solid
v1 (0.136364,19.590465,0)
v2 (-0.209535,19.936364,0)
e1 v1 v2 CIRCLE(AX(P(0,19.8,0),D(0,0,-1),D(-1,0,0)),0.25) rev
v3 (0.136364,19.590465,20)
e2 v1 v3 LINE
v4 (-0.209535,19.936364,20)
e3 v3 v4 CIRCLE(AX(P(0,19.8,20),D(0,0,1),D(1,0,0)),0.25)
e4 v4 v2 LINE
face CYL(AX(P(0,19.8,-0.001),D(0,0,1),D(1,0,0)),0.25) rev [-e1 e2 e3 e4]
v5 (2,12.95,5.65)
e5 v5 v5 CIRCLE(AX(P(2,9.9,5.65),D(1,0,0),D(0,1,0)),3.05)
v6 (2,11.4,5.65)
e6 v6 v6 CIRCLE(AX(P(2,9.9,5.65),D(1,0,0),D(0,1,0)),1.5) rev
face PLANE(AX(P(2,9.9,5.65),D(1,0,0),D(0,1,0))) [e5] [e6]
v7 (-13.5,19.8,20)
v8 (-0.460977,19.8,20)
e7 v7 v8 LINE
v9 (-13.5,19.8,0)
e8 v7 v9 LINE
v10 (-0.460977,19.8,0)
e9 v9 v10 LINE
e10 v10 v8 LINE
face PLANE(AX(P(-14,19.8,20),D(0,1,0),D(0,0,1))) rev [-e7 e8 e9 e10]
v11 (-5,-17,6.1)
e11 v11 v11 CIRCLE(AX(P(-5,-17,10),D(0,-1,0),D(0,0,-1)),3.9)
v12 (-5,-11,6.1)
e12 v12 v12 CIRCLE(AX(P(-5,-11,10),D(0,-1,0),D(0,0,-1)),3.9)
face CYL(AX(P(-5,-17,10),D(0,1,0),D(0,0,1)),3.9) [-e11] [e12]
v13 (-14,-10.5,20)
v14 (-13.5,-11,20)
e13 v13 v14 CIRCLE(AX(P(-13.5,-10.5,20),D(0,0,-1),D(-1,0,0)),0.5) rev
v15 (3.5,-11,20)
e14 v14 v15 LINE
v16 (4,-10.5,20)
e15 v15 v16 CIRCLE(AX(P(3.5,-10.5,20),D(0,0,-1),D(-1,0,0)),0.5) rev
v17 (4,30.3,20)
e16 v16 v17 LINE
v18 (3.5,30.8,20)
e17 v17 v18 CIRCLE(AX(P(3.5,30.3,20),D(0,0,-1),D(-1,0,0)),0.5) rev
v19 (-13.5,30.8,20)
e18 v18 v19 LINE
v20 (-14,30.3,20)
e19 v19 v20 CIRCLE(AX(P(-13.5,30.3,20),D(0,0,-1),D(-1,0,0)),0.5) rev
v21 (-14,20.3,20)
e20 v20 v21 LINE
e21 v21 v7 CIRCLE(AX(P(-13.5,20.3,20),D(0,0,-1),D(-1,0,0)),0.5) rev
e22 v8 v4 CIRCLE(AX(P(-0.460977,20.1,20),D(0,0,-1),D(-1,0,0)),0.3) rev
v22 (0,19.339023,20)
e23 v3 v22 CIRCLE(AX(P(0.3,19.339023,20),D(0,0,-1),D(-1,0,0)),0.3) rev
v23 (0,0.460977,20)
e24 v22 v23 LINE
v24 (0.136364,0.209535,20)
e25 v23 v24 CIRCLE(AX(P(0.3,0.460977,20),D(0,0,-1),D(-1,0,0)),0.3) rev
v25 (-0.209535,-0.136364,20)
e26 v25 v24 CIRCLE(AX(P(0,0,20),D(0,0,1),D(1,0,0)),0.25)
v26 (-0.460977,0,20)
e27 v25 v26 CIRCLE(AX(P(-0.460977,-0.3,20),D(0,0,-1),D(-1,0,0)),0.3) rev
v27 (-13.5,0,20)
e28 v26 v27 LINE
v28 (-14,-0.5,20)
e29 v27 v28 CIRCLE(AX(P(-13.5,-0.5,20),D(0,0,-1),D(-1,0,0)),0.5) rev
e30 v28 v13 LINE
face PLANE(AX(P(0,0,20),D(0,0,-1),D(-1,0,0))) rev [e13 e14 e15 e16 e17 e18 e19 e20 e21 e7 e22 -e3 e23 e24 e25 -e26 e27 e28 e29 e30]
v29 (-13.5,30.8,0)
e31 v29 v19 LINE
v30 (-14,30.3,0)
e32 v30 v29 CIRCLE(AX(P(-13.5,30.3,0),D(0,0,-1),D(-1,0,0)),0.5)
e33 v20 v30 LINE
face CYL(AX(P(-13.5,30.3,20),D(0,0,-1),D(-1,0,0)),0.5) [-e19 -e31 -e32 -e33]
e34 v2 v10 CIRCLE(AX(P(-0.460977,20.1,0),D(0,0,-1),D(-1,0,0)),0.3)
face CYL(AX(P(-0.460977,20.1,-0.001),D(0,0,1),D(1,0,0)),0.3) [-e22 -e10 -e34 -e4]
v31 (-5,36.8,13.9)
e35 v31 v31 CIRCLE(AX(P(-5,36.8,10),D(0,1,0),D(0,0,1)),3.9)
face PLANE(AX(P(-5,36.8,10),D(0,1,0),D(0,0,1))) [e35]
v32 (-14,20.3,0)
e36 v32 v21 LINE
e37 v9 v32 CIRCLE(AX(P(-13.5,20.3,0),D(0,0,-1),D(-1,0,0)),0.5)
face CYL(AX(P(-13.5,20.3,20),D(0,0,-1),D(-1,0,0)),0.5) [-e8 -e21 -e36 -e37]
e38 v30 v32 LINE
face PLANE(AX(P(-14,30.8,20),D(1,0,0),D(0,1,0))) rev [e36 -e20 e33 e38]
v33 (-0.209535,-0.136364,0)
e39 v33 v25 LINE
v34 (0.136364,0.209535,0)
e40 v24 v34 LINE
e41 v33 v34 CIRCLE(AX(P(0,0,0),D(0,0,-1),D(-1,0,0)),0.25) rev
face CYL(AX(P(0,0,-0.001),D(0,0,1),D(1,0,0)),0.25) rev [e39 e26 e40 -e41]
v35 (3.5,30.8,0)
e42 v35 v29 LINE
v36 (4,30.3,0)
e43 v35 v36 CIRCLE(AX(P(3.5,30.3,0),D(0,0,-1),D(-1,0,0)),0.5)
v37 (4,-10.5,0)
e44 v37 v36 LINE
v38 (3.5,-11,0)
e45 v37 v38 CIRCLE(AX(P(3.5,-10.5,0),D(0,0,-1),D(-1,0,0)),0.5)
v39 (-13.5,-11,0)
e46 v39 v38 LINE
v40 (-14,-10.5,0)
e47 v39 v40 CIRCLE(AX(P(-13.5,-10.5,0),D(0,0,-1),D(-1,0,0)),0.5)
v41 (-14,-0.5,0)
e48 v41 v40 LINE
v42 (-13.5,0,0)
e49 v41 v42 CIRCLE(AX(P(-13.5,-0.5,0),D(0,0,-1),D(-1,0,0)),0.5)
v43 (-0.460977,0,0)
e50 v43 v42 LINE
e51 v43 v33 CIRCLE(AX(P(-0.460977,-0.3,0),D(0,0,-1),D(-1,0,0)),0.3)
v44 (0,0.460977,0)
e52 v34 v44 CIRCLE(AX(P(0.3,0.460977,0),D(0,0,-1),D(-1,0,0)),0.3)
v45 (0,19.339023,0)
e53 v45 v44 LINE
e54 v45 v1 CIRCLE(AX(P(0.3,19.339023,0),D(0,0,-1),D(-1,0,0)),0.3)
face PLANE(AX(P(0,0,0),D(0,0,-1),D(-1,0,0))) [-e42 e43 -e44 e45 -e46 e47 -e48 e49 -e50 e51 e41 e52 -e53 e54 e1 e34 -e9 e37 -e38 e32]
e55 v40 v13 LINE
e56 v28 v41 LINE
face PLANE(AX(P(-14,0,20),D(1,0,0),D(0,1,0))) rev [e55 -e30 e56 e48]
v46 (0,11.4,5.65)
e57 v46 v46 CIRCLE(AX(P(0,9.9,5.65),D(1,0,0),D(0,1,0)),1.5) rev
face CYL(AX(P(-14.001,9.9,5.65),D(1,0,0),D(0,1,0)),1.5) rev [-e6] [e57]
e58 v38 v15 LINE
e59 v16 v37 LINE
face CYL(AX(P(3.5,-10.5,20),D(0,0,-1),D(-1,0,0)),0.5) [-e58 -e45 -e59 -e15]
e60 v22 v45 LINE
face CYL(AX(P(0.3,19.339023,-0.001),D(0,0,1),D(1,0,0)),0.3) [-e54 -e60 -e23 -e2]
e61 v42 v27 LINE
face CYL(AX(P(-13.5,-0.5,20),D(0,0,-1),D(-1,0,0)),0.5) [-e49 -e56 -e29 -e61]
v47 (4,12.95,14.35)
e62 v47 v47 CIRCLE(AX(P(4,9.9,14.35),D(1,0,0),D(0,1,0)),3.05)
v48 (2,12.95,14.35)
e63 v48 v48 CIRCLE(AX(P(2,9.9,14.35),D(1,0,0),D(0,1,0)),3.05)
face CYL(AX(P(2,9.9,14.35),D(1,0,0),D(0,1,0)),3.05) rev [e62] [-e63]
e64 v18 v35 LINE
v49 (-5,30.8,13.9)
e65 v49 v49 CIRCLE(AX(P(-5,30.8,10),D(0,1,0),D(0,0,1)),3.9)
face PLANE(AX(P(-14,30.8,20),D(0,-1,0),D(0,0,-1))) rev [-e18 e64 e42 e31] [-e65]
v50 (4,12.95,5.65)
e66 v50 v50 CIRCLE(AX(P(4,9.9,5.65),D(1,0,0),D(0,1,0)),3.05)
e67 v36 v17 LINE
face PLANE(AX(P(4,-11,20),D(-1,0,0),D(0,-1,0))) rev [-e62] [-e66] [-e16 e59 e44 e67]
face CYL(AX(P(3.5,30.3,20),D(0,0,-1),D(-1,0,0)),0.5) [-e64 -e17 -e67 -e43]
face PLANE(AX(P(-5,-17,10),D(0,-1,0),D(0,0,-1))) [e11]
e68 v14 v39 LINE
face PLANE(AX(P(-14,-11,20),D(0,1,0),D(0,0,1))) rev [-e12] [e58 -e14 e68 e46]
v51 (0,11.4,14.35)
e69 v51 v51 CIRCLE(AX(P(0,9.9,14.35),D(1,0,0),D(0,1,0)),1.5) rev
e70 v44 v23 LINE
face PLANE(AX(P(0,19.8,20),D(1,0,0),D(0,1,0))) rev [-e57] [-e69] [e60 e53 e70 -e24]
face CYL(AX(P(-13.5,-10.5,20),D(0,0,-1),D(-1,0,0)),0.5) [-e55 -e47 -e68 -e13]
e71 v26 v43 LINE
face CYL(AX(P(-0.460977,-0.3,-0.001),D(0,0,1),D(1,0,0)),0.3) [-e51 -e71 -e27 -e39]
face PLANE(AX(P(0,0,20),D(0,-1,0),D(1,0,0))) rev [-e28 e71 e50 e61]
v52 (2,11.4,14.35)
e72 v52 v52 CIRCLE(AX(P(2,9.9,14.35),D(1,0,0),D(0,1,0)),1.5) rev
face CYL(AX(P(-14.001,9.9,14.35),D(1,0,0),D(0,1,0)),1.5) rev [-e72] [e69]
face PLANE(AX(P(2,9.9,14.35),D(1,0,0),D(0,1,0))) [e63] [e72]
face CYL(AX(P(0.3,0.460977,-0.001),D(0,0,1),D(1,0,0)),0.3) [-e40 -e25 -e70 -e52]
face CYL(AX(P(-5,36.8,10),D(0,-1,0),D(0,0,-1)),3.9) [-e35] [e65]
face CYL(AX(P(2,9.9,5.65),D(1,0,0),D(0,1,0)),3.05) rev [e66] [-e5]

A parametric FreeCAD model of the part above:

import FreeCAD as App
import Part
import Sketcher

V = App.Vector
Q = App.Units.Quantity


def edges_at(feature, points):
    """Names of the edges that pass closest to the given points."""
    edges = feature.Shape.Edges
    near = lambda p: min(range(len(edges)), key=lambda i: edges[i].distToShape(Part.Vertex(*p))[0])
    return sorted({f"Edge{near(p) + 1}" for p in points})

doc = App.newDocument("Part")
body = doc.addObject("PartDesign::Body", "Body")

sketch1 = body.newObject("Sketcher::SketchObject", "Sketch")
sketch1.AttachmentSupport = (doc.getObject("XY_Plane"), [""])
sketch1.MapMode = "FlatFace"
sketch1.addGeometry([
    Part.LineSegment(V(0, 0, 0), V(-14, 0, 0)),
    Part.LineSegment(V(-14, 0, 0), V(-14, -11, 0)),
    Part.LineSegment(V(-14, -11, 0), V(4, -11, 0)),
    Part.LineSegment(V(4, -11, 0), V(4, 31, 0)),
    Part.LineSegment(V(4, 31, 0), V(-14, 31, 0)),
    Part.LineSegment(V(-14, 31, 0), V(-14, 20, 0)),
    Part.LineSegment(V(-14, 20, 0), V(0, 20, 0)),
    Part.LineSegment(V(0, 20, 0), V(0, 0, 0)),
], False)
sketch1.addConstraint([
    Sketcher.Constraint("Coincident", 0, 2, 1, 1),
    Sketcher.Constraint("Coincident", 1, 2, 2, 1),
    Sketcher.Constraint("Coincident", 2, 2, 3, 1),
    Sketcher.Constraint("Coincident", 3, 2, 4, 1),
    Sketcher.Constraint("Coincident", 4, 2, 5, 1),
    Sketcher.Constraint("Coincident", 5, 2, 6, 1),
    Sketcher.Constraint("Coincident", 6, 2, 7, 1),
    Sketcher.Constraint("Coincident", 7, 2, 0, 1),
    Sketcher.Constraint("Horizontal", 0),
    Sketcher.Constraint("Vertical", 1),
    Sketcher.Constraint("Horizontal", 2),
    Sketcher.Constraint("Vertical", 3),
    Sketcher.Constraint("Horizontal", 4),
    Sketcher.Constraint("Vertical", 5),
    Sketcher.Constraint("Horizontal", 6),
    Sketcher.Constraint("Vertical", 7),
    Sketcher.Constraint("Coincident", 7, 2, -1, 1),
    Sketcher.Constraint("Vertical", 1, 2, 4, 2),
    Sketcher.Constraint("Equal", 1, 5),
    Sketcher.Constraint("DistanceX", 0, 2, 0, 1, Q("14 mm")),
    Sketcher.Constraint("DistanceX", 2, 1, 2, 2, Q("18 mm")),
    Sketcher.Constraint("DistanceY", 1, 2, 1, 1, Q("11 mm")),
    Sketcher.Constraint("DistanceY", 3, 1, 3, 2, Q("41.8 mm")),
])
pad1 = body.newObject("PartDesign::Pad", "Pad")
pad1.Profile = sketch1
pad1.Length = 20

sketch2 = body.newObject("Sketcher::SketchObject", "Sketch001")
sketch2.AttachmentSupport = (doc.getObject("XY_Plane"), [""])
sketch2.MapMode = "FlatFace"
sketch2.AttachmentOffset = App.Placement(V(0, 0, 20), App.Rotation())
sketch2.addGeometry(Part.Circle(V(0, 0, 0), V(0, 0, 1), 0.25), False)
sketch2.addConstraint([
    Sketcher.Constraint("Coincident", 0, 3, -1, 1),
    Sketcher.Constraint("Diameter", 0, Q("0.5 mm")),
])
pocket1 = body.newObject("PartDesign::Pocket", "Pocket")
pocket1.Profile = sketch2
pocket1.Type = "UpToFirst"

sketch3 = body.newObject("Sketcher::SketchObject", "Sketch002")
sketch3.AttachmentSupport = (doc.getObject("XY_Plane"), [""])
sketch3.MapMode = "FlatFace"
sketch3.AttachmentOffset = App.Placement(V(0, 0, 20), App.Rotation())
sketch3.addGeometry(Part.Circle(V(0, 19.8, 0), V(0, 0, 1), 0.25), False)
sketch3.addConstraint([
    Sketcher.Constraint("PointOnObject", 0, 3, -2),
    Sketcher.Constraint("Diameter", 0, Q("0.5 mm")),
    Sketcher.Constraint("DistanceY", -1, 1, 0, 3, Q("19.8 mm")),
])
pocket2 = body.newObject("PartDesign::Pocket", "Pocket001")
pocket2.Profile = sketch3
pocket2.Type = "UpToFirst"

sketch4 = body.newObject("Sketcher::SketchObject", "Sketch003")
sketch4.AttachmentSupport = (doc.getObject("YZ_Plane"), [""])
sketch4.MapMode = "FlatFace"
sketch4.AttachmentOffset = App.Placement(V(0, 0, 4), App.Rotation())
sketch4.addGeometry(Part.Circle(V(9.9, 5.7, 0), V(0, 0, 1), 1.5), False)
sketch4.addConstraint([
    Sketcher.Constraint("Diameter", 0, Q("3 mm")),
    Sketcher.Constraint("DistanceX", -1, 1, 0, 3, Q("9.9 mm")),
    Sketcher.Constraint("DistanceY", -1, 1, 0, 3, Q("5.65 mm")),
])
pocket3 = body.newObject("PartDesign::Pocket", "Pocket002")
pocket3.Profile = sketch4
pocket3.Type = "UpToFirst"

sketch5 = body.newObject("Sketcher::SketchObject", "Sketch004")
sketch5.AttachmentSupport = (doc.getObject("YZ_Plane"), [""])
sketch5.MapMode = "FlatFace"
sketch5.AttachmentOffset = App.Placement(V(0, 0, 4), App.Rotation())
sketch5.addGeometry(Part.Circle(V(9.9, 14.3, 0), V(0, 0, 1), 1.5), False)
sketch5.addConstraint([
    Sketcher.Constraint("Diameter", 0, Q("3 mm")),
    Sketcher.Constraint("DistanceX", -1, 1, 0, 3, Q("9.9 mm")),
    Sketcher.Constraint("DistanceY", -1, 1, 0, 3, Q("14.35 mm")),
])
pocket4 = body.newObject("PartDesign::Pocket", "Pocket003")
pocket4.Profile = sketch5
pocket4.Type = "UpToFirst"
doc.recompute()

fillet = body.newObject("PartDesign::Fillet", "Fillet")
fillet.Base = (pocket4, edges_at(pocket4, [
    (0, 0.25, 10),
    (-0.25, 0, 10),
    (0, 19.55, 10),
    (-0.25, 19.8, 10),
]))
fillet.Radius = 0.3

sketch6 = body.newObject("Sketcher::SketchObject", "Sketch005")
sketch6.AttachmentSupport = (doc.getObject("XZ_Plane"), [""])
sketch6.MapMode = "FlatFace"
sketch6.AttachmentOffset = App.Placement(V(0, 0, 11), App.Rotation())
sketch6.addGeometry(Part.Circle(V(-5, 10, 0), V(0, 0, 1), 3.9), False)
sketch6.addConstraint([
    Sketcher.Constraint("Diameter", 0, Q("7.8 mm")),
    Sketcher.Constraint("DistanceX", 0, 3, -1, 1, Q("5 mm")),
    Sketcher.Constraint("DistanceY", -1, 1, 0, 3, Q("10 mm")),
])
pad2 = body.newObject("PartDesign::Pad", "Pad001")
pad2.Profile = sketch6
pad2.Length = 6

sketch7 = body.newObject("Sketcher::SketchObject", "Sketch006")
sketch7.AttachmentSupport = (doc.getObject("XZ_Plane"), [""])
sketch7.MapMode = "FlatFace"
sketch7.AttachmentOffset = App.Placement(V(0, 0, -36.8), App.Rotation())
sketch7.addGeometry(Part.Circle(V(-5, 10, 0), V(0, 0, 1), 3.9), False)
sketch7.addConstraint([
    Sketcher.Constraint("Diameter", 0, Q("7.8 mm")),
    Sketcher.Constraint("DistanceX", 0, 3, -1, 1, Q("5 mm")),
    Sketcher.Constraint("DistanceY", -1, 1, 0, 3, Q("10 mm")),
])
pad3 = body.newObject("PartDesign::Pad", "Pad002")
pad3.Profile = sketch7
pad3.Length = 6
doc.recompute()

fillet2 = body.newObject("PartDesign::Fillet", "Fillet001")
fillet2.Base = (pad3, edges_at(pad3, [
    (-14, 19.8, 10),
    (-14, 30.8, 10),
    (4, 30.8, 10),
    (4, -11, 10),
    (-14, -11, 10),
    (-14, 0, 10),
]))
fillet2.Radius = 0.5

sketch8 = body.newObject("Sketcher::SketchObject", "Sketch007")
sketch8.AttachmentSupport = (doc.getObject("YZ_Plane"), [""])
sketch8.MapMode = "FlatFace"
sketch8.AttachmentOffset = App.Placement(V(0, 0, 4), App.Rotation())
sketch8.addGeometry([
    Part.Circle(V(9.9, 14.3, 0), V(0, 0, 1), 3),
    Part.Circle(V(9.9, 5.7, 0), V(0, 0, 1), 3),
], False)
sketch8.addConstraint([
    Sketcher.Constraint("Equal", 0, 1),
    Sketcher.Constraint("Vertical", 0, 3, 1, 3),
    Sketcher.Constraint("Diameter", 0, Q("6.1 mm")),
    Sketcher.Constraint("DistanceX", -1, 1, 0, 3, Q("9.9 mm")),
    Sketcher.Constraint("DistanceY", 1, 3, 0, 3, Q("8.7 mm")),
    Sketcher.Constraint("DistanceY", -1, 1, 0, 3, Q("14.35 mm")),
])
pocket5 = body.newObject("PartDesign::Pocket", "Pocket004")
pocket5.Profile = sketch8
pocket5.Length = 2

doc.recompute()
